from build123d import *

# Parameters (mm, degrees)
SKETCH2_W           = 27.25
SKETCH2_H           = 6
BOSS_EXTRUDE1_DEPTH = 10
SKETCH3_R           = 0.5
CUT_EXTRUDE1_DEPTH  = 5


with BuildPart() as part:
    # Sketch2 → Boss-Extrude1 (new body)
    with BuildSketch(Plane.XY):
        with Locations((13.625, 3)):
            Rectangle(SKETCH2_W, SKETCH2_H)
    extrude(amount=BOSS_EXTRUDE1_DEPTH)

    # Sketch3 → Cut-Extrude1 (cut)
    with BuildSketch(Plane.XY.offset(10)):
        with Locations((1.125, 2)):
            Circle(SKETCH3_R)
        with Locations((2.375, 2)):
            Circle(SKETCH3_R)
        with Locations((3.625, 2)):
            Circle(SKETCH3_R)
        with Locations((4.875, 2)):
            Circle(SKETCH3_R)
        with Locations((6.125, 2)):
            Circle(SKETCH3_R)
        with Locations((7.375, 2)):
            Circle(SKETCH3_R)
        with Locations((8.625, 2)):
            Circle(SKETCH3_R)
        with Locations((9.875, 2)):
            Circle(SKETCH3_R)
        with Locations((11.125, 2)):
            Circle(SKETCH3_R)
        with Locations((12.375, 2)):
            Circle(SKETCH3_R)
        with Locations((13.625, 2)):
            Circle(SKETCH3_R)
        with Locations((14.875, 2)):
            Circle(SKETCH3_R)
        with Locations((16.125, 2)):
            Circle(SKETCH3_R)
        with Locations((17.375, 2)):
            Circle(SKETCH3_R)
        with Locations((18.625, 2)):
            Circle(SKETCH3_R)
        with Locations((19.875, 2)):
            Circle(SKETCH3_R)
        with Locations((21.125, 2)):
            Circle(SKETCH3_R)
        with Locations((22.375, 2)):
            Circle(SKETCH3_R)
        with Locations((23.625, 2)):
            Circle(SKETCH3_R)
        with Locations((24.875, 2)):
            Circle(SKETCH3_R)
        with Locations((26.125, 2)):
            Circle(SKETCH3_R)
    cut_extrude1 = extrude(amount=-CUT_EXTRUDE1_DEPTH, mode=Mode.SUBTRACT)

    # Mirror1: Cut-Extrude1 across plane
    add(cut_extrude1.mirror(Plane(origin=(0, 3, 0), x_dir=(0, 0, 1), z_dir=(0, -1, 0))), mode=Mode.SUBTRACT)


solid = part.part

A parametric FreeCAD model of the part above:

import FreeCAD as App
import Part
import Sketcher

V = App.Vector
Q = App.Units.Quantity


def add_polygon(sketch, points):
    """Adds a closed chain of lines whose ends are joined by coincident constraints."""
    first, n = sketch.GeometryCount, len(points)
    for a, b in zip(points, points[1:] + points[:1]):
        sketch.addGeometry(Part.LineSegment(App.Vector(*a, 0), App.Vector(*b, 0)), False)
    for i in range(n):
        sketch.addConstraint(Sketcher.Constraint("Coincident", first + i, 2, first + (i + 1) % n, 1))

doc = App.newDocument("Part")
body = doc.addObject("PartDesign::Body", "Body")

# Sketch on XY plane
sketch1 = body.newObject("Sketcher::SketchObject", "Sketch")
sketch1.AttachmentSupport = (doc.getObject("XY_Plane"), [""])
sketch1.MapMode = "FlatFace"
add_polygon(sketch1, [(0, 6), (0, 0), (27.25, 0), (27.25, 6)])  # lines 0-3
sketch1.addConstraint([
    Sketcher.Constraint("Vertical", 0),
    Sketcher.Constraint("Horizontal", 1),
    Sketcher.Constraint("Vertical", 2),
    Sketcher.Constraint("Horizontal", 3),
    Sketcher.Constraint("Coincident", 0, 2, -1, 1),
    Sketcher.Constraint("DistanceY", 0, 2, 0, 1, Q("6 mm")),
    Sketcher.Constraint("DistanceX", 1, 1, 1, 2, Q("27.25 mm")),
])
pad1 = body.newObject("PartDesign::Pad", "Pad")
pad1.Profile = sketch1
pad1.Length = 10

# Sketch on XY plane
sketch2 = body.newObject("Sketcher::SketchObject", "Sketch001")
sketch2.AttachmentSupport = (doc.getObject("XY_Plane"), [""])
sketch2.MapMode = "FlatFace"
sketch2.AttachmentOffset = App.Placement(V(0, 0, 10), App.Rotation())
sketch2.addGeometry([
    Part.Circle(V(1.125, 2, 0), V(0, 0, 1), 0.5),  # 0
    Part.Circle(V(2.375, 2, 0), V(0, 0, 1), 0.5),  # 1
    Part.Circle(V(3.625, 2, 0), V(0, 0, 1), 0.5),  # 2
    Part.Circle(V(4.875, 2, 0), V(0, 0, 1), 0.5),  # 3
    Part.Circle(V(6.125, 2, 0), V(0, 0, 1), 0.5),  # 4
    Part.Circle(V(7.375, 2, 0), V(0, 0, 1), 0.5),  # 5
    Part.Circle(V(8.625, 2, 0), V(0, 0, 1), 0.5),  # 6
    Part.Circle(V(9.875, 2, 0), V(0, 0, 1), 0.5),  # 7
    Part.Circle(V(11.125, 2, 0), V(0, 0, 1), 0.5),  # 8
    Part.Circle(V(12.375, 2, 0), V(0, 0, 1), 0.5),  # 9
    Part.Circle(V(13.625, 2, 0), V(0, 0, 1), 0.5),  # 10
    Part.Circle(V(14.875, 2, 0), V(0, 0, 1), 0.5),  # 11
    Part.Circle(V(16.125, 2, 0), V(0, 0, 1), 0.5),  # 12
    Part.Circle(V(17.375, 2, 0), V(0, 0, 1), 0.5),  # 13
    Part.Circle(V(18.625, 2, 0), V(0, 0, 1), 0.5),  # 14
    Part.Circle(V(19.875, 2, 0), V(0, 0, 1), 0.5),  # 15
    Part.Circle(V(21.125, 2, 0), V(0, 0, 1), 0.5),  # 16
    Part.Circle(V(22.375, 2, 0), V(0, 0, 1), 0.5),  # 17
    Part.Circle(V(23.625, 2, 0), V(0, 0, 1), 0.5),  # 18
    Part.Circle(V(24.875, 2, 0), V(0, 0, 1), 0.5),  # 19
    Part.Circle(V(26.125, 2, 0), V(0, 0, 1), 0.5),  # 20
], False)
sketch2.addConstraint([
    Sketcher.Constraint("Equal", 0, 1),
    Sketcher.Constraint("Equal", 1, 2),
    Sketcher.Constraint("Equal", 2, 3),
    Sketcher.Constraint("Equal", 3, 4),
    Sketcher.Constraint("Equal", 4, 5),
    Sketcher.Constraint("Equal", 5, 6),
    Sketcher.Constraint("Equal", 6, 7),
    Sketcher.Constraint("Equal", 7, 8),
    Sketcher.Constraint("Equal", 8, 9),
    Sketcher.Constraint("Equal", 9, 10),
    Sketcher.Constraint("Equal", 10, 11),
    Sketcher.Constraint("Equal", 11, 12),
    Sketcher.Constraint("Equal", 12, 13),
    Sketcher.Constraint("Equal", 13, 14),
    Sketcher.Constraint("Equal", 14, 15),
    Sketcher.Constraint("Equal", 15, 16),
    Sketcher.Constraint("Equal", 16, 17),
    Sketcher.Constraint("Equal", 17, 18),
    Sketcher.Constraint("Equal", 18, 19),
    Sketcher.Constraint("Equal", 19, 20),
    Sketcher.Constraint("Horizontal", 0, 3, 1, 3),
    Sketcher.Constraint("Horizontal", 1, 3, 2, 3),
    Sketcher.Constraint("Horizontal", 2, 3, 3, 3),
    Sketcher.Constraint("Horizontal", 3, 3, 4, 3),
    Sketcher.Constraint("Horizontal", 4, 3, 5, 3),
    Sketcher.Constraint("Horizontal", 5, 3, 6, 3),
    Sketcher.Constraint("Horizontal", 6, 3, 7, 3),
    Sketcher.Constraint("Horizontal", 7, 3, 8, 3),
    Sketcher.Constraint("Horizontal", 8, 3, 9, 3),
    Sketcher.Constraint("Horizontal", 9, 3, 10, 3),
    Sketcher.Constraint("Horizontal", 10, 3, 11, 3),
    Sketcher.Constraint("Horizontal", 11, 3, 12, 3),
    Sketcher.Constraint("Horizontal", 12, 3, 13, 3),
    Sketcher.Constraint("Horizontal", 13, 3, 14, 3),
    Sketcher.Constraint("Horizontal", 14, 3, 15, 3),
    Sketcher.Constraint("Horizontal", 15, 3, 16, 3),
    Sketcher.Constraint("Horizontal", 16, 3, 17, 3),
    Sketcher.Constraint("Horizontal", 17, 3, 18, 3),
    Sketcher.Constraint("Horizontal", 18, 3, 19, 3),
    Sketcher.Constraint("Horizontal", 19, 3, 20, 3),
    Sketcher.Constraint("Diameter", 0, Q("1 mm")),
    Sketcher.Constraint("DistanceY", -1, 1, 0, 3, Q("2 mm")),
    Sketcher.Constraint("DistanceX", 0, 3, 4, 3, Q("5 mm")),
    Sketcher.Constraint("DistanceX", 1, 3, 5, 3, Q("5 mm")),
    Sketcher.Constraint("DistanceX", 2, 3, 6, 3, Q("5 mm")),
    Sketcher.Constraint("DistanceX", 3, 3, 7, 3, Q("5 mm")),
    Sketcher.Constraint("DistanceX", 4, 3, 8, 3, Q("5 mm")),
    Sketcher.Constraint("DistanceX", 5, 3, 9, 3, Q("5 mm")),
    Sketcher.Constraint("DistanceX", 6, 3, 10, 3, Q("5 mm")),
    Sketcher.Constraint("DistanceX", 7, 3, 11, 3, Q("5 mm")),
    Sketcher.Constraint("DistanceX", 8, 3, 12, 3, Q("5 mm")),
    Sketcher.Constraint("DistanceX", 9, 3, 13, 3, Q("5 mm")),
    Sketcher.Constraint("DistanceX", 10, 3, 14, 3, Q("5 mm")),
    Sketcher.Constraint("DistanceX", 11, 3, 15, 3, Q("5 mm")),
    Sketcher.Constraint("DistanceX", 12, 3, 16, 3, Q("5 mm")),
    Sketcher.Constraint("DistanceX", 13, 3, 17, 3, Q("5 mm")),
    Sketcher.Constraint("DistanceX", 14, 3, 18, 3, Q("5 mm")),
    Sketcher.Constraint("DistanceX", 15, 3, 19, 3, Q("5 mm")),
    Sketcher.Constraint("DistanceX", 16, 3, 20, 3, Q("5 mm")),
    Sketcher.Constraint("DistanceX", 0, 3, 2, 3, Q("2.5 mm")),
    Sketcher.Constraint("DistanceX", 1, 3, 3, 3, Q("2.5 mm")),
    Sketcher.Constraint("DistanceX", 0, 3, 1, 3, Q("1.25 mm")),
    Sketcher.Constraint("DistanceX", -1, 1, 0, 3, Q("1.125 mm")),
])
pocket1 = body.newObject("PartDesign::Pocket", "Pocket")
pocket1.Profile = sketch2
pocket1.Length = 5
doc.recompute()

datumplane = body.newObject("PartDesign::Plane", "DatumPlane")
datumplane.AttachmentSupport = (doc.getObject("XZ_Plane"), [""])
datumplane.MapMode = "FlatFace"
datumplane.AttachmentOffset = App.Placement(V(0, 0, -3), App.Rotation())
mirrored = body.newObject("PartDesign::Mirrored", "Mirrored")
mirrored.Originals = [pocket1]
mirrored.MirrorPlane = (datumplane, [""])
body.Tip = mirrored

doc.recompute()
